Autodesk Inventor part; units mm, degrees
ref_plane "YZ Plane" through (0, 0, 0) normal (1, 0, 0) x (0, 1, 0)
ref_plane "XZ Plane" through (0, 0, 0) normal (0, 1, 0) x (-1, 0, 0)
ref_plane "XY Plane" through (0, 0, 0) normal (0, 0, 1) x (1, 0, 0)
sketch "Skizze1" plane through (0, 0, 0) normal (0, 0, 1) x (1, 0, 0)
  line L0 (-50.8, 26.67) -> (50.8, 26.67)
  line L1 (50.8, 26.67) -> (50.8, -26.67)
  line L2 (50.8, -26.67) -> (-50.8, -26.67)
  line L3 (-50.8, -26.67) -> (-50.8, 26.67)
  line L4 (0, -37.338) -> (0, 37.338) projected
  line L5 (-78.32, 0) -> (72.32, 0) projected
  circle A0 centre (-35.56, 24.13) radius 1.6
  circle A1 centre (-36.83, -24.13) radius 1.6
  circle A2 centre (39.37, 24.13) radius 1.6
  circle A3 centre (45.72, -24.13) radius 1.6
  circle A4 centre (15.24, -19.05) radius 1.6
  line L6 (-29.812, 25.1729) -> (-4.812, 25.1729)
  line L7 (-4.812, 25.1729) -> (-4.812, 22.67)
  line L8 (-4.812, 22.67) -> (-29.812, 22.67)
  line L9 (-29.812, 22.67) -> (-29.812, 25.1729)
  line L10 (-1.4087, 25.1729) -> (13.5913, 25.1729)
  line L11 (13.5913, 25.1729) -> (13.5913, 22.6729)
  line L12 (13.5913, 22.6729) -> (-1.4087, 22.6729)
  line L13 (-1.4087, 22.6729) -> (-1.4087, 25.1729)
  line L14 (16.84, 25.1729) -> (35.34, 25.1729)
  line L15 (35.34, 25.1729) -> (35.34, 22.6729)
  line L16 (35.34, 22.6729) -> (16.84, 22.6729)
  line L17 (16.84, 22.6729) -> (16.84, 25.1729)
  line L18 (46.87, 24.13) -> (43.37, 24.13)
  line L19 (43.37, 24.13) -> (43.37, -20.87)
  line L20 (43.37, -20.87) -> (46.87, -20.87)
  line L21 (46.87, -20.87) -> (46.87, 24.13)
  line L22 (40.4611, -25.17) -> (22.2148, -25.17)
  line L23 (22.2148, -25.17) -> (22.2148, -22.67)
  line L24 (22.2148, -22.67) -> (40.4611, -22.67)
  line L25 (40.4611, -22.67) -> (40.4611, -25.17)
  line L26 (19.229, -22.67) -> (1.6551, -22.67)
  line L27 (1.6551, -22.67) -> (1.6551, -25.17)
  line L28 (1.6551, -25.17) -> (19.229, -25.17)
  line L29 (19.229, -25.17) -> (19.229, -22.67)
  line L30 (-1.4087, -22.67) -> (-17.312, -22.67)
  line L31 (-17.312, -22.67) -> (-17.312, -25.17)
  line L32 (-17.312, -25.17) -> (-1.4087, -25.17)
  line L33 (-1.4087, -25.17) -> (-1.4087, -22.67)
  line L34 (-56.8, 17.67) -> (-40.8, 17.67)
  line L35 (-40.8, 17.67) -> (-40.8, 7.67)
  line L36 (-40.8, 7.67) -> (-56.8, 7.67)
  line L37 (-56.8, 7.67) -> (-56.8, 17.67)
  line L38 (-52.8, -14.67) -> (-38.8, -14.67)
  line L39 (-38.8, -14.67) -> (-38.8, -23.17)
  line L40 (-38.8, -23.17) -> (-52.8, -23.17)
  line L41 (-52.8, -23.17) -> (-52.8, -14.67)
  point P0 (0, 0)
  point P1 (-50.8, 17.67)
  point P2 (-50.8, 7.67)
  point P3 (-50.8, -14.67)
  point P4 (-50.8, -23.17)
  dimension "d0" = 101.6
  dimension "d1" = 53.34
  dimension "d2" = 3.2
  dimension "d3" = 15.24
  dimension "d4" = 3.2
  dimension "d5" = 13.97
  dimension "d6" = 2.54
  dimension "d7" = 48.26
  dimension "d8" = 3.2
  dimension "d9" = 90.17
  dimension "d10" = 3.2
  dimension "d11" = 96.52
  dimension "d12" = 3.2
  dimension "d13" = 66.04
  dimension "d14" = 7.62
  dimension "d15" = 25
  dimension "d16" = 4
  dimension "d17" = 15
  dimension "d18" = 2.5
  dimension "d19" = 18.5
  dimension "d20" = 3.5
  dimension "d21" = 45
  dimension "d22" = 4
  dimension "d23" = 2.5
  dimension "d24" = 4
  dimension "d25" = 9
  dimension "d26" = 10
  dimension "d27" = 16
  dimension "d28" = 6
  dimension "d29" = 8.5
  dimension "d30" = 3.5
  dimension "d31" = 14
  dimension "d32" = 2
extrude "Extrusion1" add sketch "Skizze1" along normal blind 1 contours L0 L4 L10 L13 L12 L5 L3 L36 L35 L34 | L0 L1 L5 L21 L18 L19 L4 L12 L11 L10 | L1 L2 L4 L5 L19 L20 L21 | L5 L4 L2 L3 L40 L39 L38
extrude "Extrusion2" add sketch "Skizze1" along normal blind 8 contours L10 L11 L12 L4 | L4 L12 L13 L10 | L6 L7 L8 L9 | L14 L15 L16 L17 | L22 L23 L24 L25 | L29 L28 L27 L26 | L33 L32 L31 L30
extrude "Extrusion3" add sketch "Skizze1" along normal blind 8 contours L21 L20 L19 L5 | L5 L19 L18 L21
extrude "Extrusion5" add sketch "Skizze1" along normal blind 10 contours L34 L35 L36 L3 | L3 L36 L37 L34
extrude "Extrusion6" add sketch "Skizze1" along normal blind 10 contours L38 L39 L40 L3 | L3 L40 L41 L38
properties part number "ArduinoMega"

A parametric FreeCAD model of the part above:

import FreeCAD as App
import Part
import Sketcher
Q = App.Units.Quantity

doc = App.newDocument("Part")
body = doc.addObject("PartDesign::Body", "Body")

sketch1 = body.newObject("Sketcher::SketchObject", "Sketch")
sketch1.AttachmentSupport = (doc.getObject("XY_Plane"), [""])
sketch1.MapMode = "FlatFace"
sketch1.addGeometry([
    Part.LineSegment(App.Vector(-50.8, 26.7, 0), App.Vector(-50.8, 17.7, 0)),
    Part.LineSegment(App.Vector(-50.8, 17.7, 0), App.Vector(-40.8, 17.7, 0)),
    Part.LineSegment(App.Vector(-40.8, 17.7, 0), App.Vector(-40.8, 7.7, 0)),
    Part.LineSegment(App.Vector(-40.8, 7.7, 0), App.Vector(-50.8, 7.7, 0)),
    Part.LineSegment(App.Vector(-50.8, 7.7, 0), App.Vector(-50.8, -14.7, 0)),
    Part.LineSegment(App.Vector(-50.8, -14.7, 0), App.Vector(-38.8, -14.7, 0)),
    Part.LineSegment(App.Vector(-38.8, -14.7, 0), App.Vector(-38.8, -23.2, 0)),
    Part.LineSegment(App.Vector(-38.8, -23.2, 0), App.Vector(-50.8, -23.2, 0)),
    Part.LineSegment(App.Vector(-50.8, -23.2, 0), App.Vector(-50.8, -26.7, 0)),
    Part.LineSegment(App.Vector(-50.8, -26.7, 0), App.Vector(50.8, -26.7, 0)),
    Part.LineSegment(App.Vector(50.8, -26.7, 0), App.Vector(50.8, 26.7, 0)),
    Part.LineSegment(App.Vector(50.8, 26.7, 0), App.Vector(-50.8, 26.7, 0)),
    Part.LineSegment(App.Vector(-1.4, 25.2, 0), App.Vector(13.6, 25.2, 0)),
    Part.LineSegment(App.Vector(13.6, 25.2, 0), App.Vector(13.6, 22.7, 0)),
    Part.LineSegment(App.Vector(13.6, 22.7, 0), App.Vector(-1.4, 22.7, 0)),
    Part.LineSegment(App.Vector(-1.4, 22.7, 0), App.Vector(-1.4, 25.2, 0)),
    Part.Circle(App.Vector(-35.6, 24.1, 0), App.Vector(0, 0, 1), 1.6),
    Part.LineSegment(App.Vector(-29.8, 22.7, 0), App.Vector(-29.8, 25.2, 0)),
    Part.LineSegment(App.Vector(-29.8, 25.2, 0), App.Vector(-4.8, 25.2, 0)),
    Part.LineSegment(App.Vector(-4.8, 25.2, 0), App.Vector(-4.8, 22.7, 0)),
    Part.LineSegment(App.Vector(-4.8, 22.7, 0), App.Vector(-29.8, 22.7, 0)),
    Part.LineSegment(App.Vector(46.9, 24.1, 0), App.Vector(46.9, -20.9, 0)),
    Part.LineSegment(App.Vector(46.9, -20.9, 0), App.Vector(43.4, -20.9, 0)),
    Part.LineSegment(App.Vector(43.4, -20.9, 0), App.Vector(43.4, 24.1, 0)),
    Part.LineSegment(App.Vector(43.4, 24.1, 0), App.Vector(46.9, 24.1, 0)),
    Part.LineSegment(App.Vector(16.8, 25.2, 0), App.Vector(35.3, 25.2, 0)),
    Part.LineSegment(App.Vector(35.3, 25.2, 0), App.Vector(35.3, 22.7, 0)),
    Part.LineSegment(App.Vector(35.3, 22.7, 0), App.Vector(16.8, 22.7, 0)),
    Part.LineSegment(App.Vector(16.8, 22.7, 0), App.Vector(16.8, 25.2, 0)),
    Part.Circle(App.Vector(39.4, 24.1, 0), App.Vector(0, 0, 1), 1.6),
    Part.LineSegment(App.Vector(-1.4, -22.7, 0), App.Vector(-1.4, -25.2, 0)),
    Part.LineSegment(App.Vector(-1.4, -25.2, 0), App.Vector(-17.3, -25.2, 0)),
    Part.LineSegment(App.Vector(-17.3, -25.2, 0), App.Vector(-17.3, -22.7, 0)),
    Part.LineSegment(App.Vector(-17.3, -22.7, 0), App.Vector(-1.4, -22.7, 0)),
    Part.Circle(App.Vector(-36.8, -24.1, 0), App.Vector(0, 0, 1), 1.6),
    Part.LineSegment(App.Vector(22.2, -25.2, 0), App.Vector(22.2, -22.7, 0)),
    Part.LineSegment(App.Vector(22.2, -22.7, 0), App.Vector(40.5, -22.7, 0)),
    Part.LineSegment(App.Vector(40.5, -22.7, 0), App.Vector(40.5, -25.2, 0)),
    Part.LineSegment(App.Vector(40.5, -25.2, 0), App.Vector(22.2, -25.2, 0)),
    Part.Circle(App.Vector(45.7, -24.1, 0), App.Vector(0, 0, 1), 1.6),
    Part.LineSegment(App.Vector(1.7, -22.7, 0), App.Vector(19.2, -22.7, 0)),
    Part.LineSegment(App.Vector(19.2, -22.7, 0), App.Vector(19.2, -25.2, 0)),
    Part.LineSegment(App.Vector(19.2, -25.2, 0), App.Vector(1.7, -25.2, 0)),
    Part.LineSegment(App.Vector(1.7, -25.2, 0), App.Vector(1.7, -22.7, 0)),
    Part.Circle(App.Vector(15.2, -19.1, 0), App.Vector(0, 0, 1), 1.6),
], False)
sketch1.addConstraint([
    Sketcher.Constraint("Coincident", 0, 2, 1, 1),
    Sketcher.Constraint("Coincident", 1, 2, 2, 1),
    Sketcher.Constraint("Coincident", 2, 2, 3, 1),
    Sketcher.Constraint("Coincident", 3, 2, 4, 1),
    Sketcher.Constraint("Coincident", 4, 2, 5, 1),
    Sketcher.Constraint("Coincident", 5, 2, 6, 1),
    Sketcher.Constraint("Coincident", 6, 2, 7, 1),
    Sketcher.Constraint("Coincident", 7, 2, 8, 1),
    Sketcher.Constraint("Coincident", 8, 2, 9, 1),
    Sketcher.Constraint("Coincident", 9, 2, 10, 1),
    Sketcher.Constraint("Coincident", 10, 2, 11, 1),
    Sketcher.Constraint("Coincident", 11, 2, 0, 1),
    Sketcher.Constraint("Coincident", 12, 2, 13, 1),
    Sketcher.Constraint("Coincident", 13, 2, 14, 1),
    Sketcher.Constraint("Coincident", 14, 2, 15, 1),
    Sketcher.Constraint("Coincident", 15, 2, 12, 1),
    Sketcher.Constraint("Coincident", 17, 2, 18, 1),
    Sketcher.Constraint("Coincident", 18, 2, 19, 1),
    Sketcher.Constraint("Coincident", 19, 2, 20, 1),
    Sketcher.Constraint("Coincident", 20, 2, 17, 1),
    Sketcher.Constraint("Coincident", 21, 2, 22, 1),
    Sketcher.Constraint("Coincident", 22, 2, 23, 1),
    Sketcher.Constraint("Coincident", 23, 2, 24, 1),
    Sketcher.Constraint("Coincident", 24, 2, 21, 1),
    Sketcher.Constraint("Coincident", 25, 2, 26, 1),
    Sketcher.Constraint("Coincident", 26, 2, 27, 1),
    Sketcher.Constraint("Coincident", 27, 2, 28, 1),
    Sketcher.Constraint("Coincident", 28, 2, 25, 1),
    Sketcher.Constraint("Coincident", 30, 2, 31, 1),
    Sketcher.Constraint("Coincident", 31, 2, 32, 1),
    Sketcher.Constraint("Coincident", 32, 2, 33, 1),
    Sketcher.Constraint("Coincident", 33, 2, 30, 1),
    Sketcher.Constraint("Coincident", 35, 2, 36, 1),
    Sketcher.Constraint("Coincident", 36, 2, 37, 1),
    Sketcher.Constraint("Coincident", 37, 2, 38, 1),
    Sketcher.Constraint("Coincident", 38, 2, 35, 1),
    Sketcher.Constraint("Coincident", 40, 2, 41, 1),
    Sketcher.Constraint("Coincident", 41, 2, 42, 1),
    Sketcher.Constraint("Coincident", 42, 2, 43, 1),
    Sketcher.Constraint("Coincident", 43, 2, 40, 1),
    Sketcher.Constraint("Vertical", 0),
    Sketcher.Constraint("Horizontal", 1),
    Sketcher.Constraint("Vertical", 2),
    Sketcher.Constraint("Horizontal", 3),
    Sketcher.Constraint("Vertical", 4),
    Sketcher.Constraint("Horizontal", 5),
    Sketcher.Constraint("Vertical", 6),
    Sketcher.Constraint("Horizontal", 7),
    Sketcher.Constraint("Vertical", 8),
    Sketcher.Constraint("Horizontal", 9),
    Sketcher.Constraint("Vertical", 10),
    Sketcher.Constraint("Horizontal", 11),
    Sketcher.Constraint("Horizontal", 12),
    Sketcher.Constraint("Vertical", 13),
    Sketcher.Constraint("Horizontal", 14),
    Sketcher.Constraint("Vertical", 15),
    Sketcher.Constraint("Vertical", 17),
    Sketcher.Constraint("Horizontal", 18),
    Sketcher.Constraint("Vertical", 19),
    Sketcher.Constraint("Horizontal", 20),
    Sketcher.Constraint("Vertical", 21),
    Sketcher.Constraint("Horizontal", 22),
    Sketcher.Constraint("Vertical", 23),
    Sketcher.Constraint("Horizontal", 24),
    Sketcher.Constraint("Horizontal", 25),
    Sketcher.Constraint("Vertical", 26),
    Sketcher.Constraint("Horizontal", 27),
    Sketcher.Constraint("Vertical", 28),
    Sketcher.Constraint("Vertical", 30),
    Sketcher.Constraint("Horizontal", 31),
    Sketcher.Constraint("Vertical", 32),
    Sketcher.Constraint("Horizontal", 33),
    Sketcher.Constraint("Vertical", 35),
    Sketcher.Constraint("Horizontal", 36),
    Sketcher.Constraint("Vertical", 37),
    Sketcher.Constraint("Horizontal", 38),
    Sketcher.Constraint("Horizontal", 40),
    Sketcher.Constraint("Vertical", 41),
    Sketcher.Constraint("Horizontal", 42),
    Sketcher.Constraint("Vertical", 43),
    Sketcher.Constraint("Equal", 16, 29),
    Sketcher.Constraint("Equal", 29, 34),
    Sketcher.Constraint("Equal", 34, 39),
    Sketcher.Constraint("Equal", 39, 44),
    Sketcher.Constraint("Symmetric", 8, 2, 10, 2, -1, 1),
    Sketcher.Constraint("Horizontal", 16, 3, 29, 3),
    Sketcher.Constraint("Horizontal", 34, 3, 39, 3),
    Sketcher.Constraint("Horizontal", 15, 2, 17, 2),
    Sketcher.Constraint("Horizontal", 29, 3, 23, 2),
    Sketcher.Constraint("Horizontal", 18, 2, 25, 2),
    Sketcher.Constraint("Horizontal", 14, 2, 26, 2),
    Sketcher.Constraint("Horizontal", 33, 2, 35, 2),
    Sketcher.Constraint("Horizontal", 31, 2, 37, 2),
    Sketcher.Constraint("Horizontal", 36, 2, 40, 2),
    Sketcher.Constraint("Horizontal", 38, 2, 41, 2),
    Sketcher.Constraint("Vertical", 0, 2, 3, 2),
    Sketcher.Constraint("Vertical", 4, 2, 7, 2),
    Sketcher.Constraint("Vertical", 15, 2, 30, 2),
    Sketcher.Constraint("Equal", 3, 2),
    Sketcher.Constraint("Equal", 24, 8),
    Sketcher.Constraint("Equal", 28, 30),
    Sketcher.Constraint("Diameter", 16, Q("3.2 mm")),
    Sketcher.Constraint("DistanceX", 1, 1, 1, 2, Q("10 mm")),
    Sketcher.Constraint("DistanceX", 12, 1, 12, 2, Q("15 mm")),
    Sketcher.Constraint("DistanceX", 18, 1, 18, 2, Q("25 mm")),
    Sketcher.Constraint("DistanceY", 0, 2, 0, 1, Q("9 mm")),
    Sketcher.Constraint("DistanceY", 21, 2, 21, 1, Q("45 mm")),
    Sketcher.Constraint("DistanceX", 9, 1, 9, 2, Q("101.6 mm")),
    Sketcher.Constraint("DistanceX", 22, 2, 22, 1, Q("3.5 mm")),
    Sketcher.Constraint("DistanceX", 25, 1, 25, 2, Q("18.5 mm")),
    Sketcher.Constraint("DistanceY", 6, 2, 6, 1, Q("8.5 mm")),
    Sketcher.Constraint("DistanceY", 13, 2, 13, 1, Q("2.5 mm")),
    Sketcher.Constraint("DistanceX", 2, 2, 5, 2, Q("2 mm")),
    Sketcher.Constraint("DistanceY", 2, 2, 20, 2, Q("15 mm")),
    Sketcher.Constraint("DistanceX", 29, 3, 22, 2, Q("4 mm")),
    Sketcher.Constraint("DistanceY", 30, 2, 6, 2, Q("2 mm")),
    Sketcher.Constraint("DistanceY", 10, 1, 10, 2, Q("53.34 mm")),
    Sketcher.Constraint("DistanceX", -1, 1, 44, 3, Q("15.24 mm")),
    Sketcher.Constraint("DistanceY", 34, 3, 16, 3, Q("48.26 mm")),
    Sketcher.Constraint("DistanceX", 0, 2, 16, 3, Q("15.24 mm")),
    Sketcher.Constraint("DistanceX", 0, 2, 34, 3, Q("13.97 mm")),
    Sketcher.Constraint("DistanceX", 0, 2, 29, 3, Q("90.17 mm")),
    Sketcher.Constraint("DistanceX", 0, 2, 39, 3, Q("96.52 mm")),
    Sketcher.Constraint("DistanceY", 8, 2, 34, 3, Q("2.54 mm")),
    Sketcher.Constraint("DistanceY", 9, 2, 44, 3, Q("7.62 mm")),
    Sketcher.Constraint("DistanceX", 40, 1, 40, 2, Q("17.574 mm")),
    Sketcher.Constraint("DistanceY", 17, 1, 17, 2, Q("2.503 mm")),
    Sketcher.Constraint("DistanceX", -1, 1, 25, 2, Q("35.34 mm")),
    Sketcher.Constraint("DistanceX", 31, 2, 31, 1, Q("15.9033 mm")),
    Sketcher.Constraint("DistanceX", 36, 1, 36, 2, Q("18.2463 mm")),
    Sketcher.Constraint("DistanceX", 17, 2, -1, 1, Q("29.812 mm")),
    Sketcher.Constraint("DistanceX", 31, 2, -1, 1, Q("17.312 mm")),
    Sketcher.Constraint("DistanceX", -1, 1, 36, 2, Q("40.461 mm")),
    Sketcher.Constraint("DistanceX", -1, 1, 40, 2, Q("19.229 mm")),
])
pad1 = body.newObject("PartDesign::Pad", "Pad")
pad1.Profile = sketch1
pad1.Length = 1

sketch2 = body.newObject("Sketcher::SketchObject", "Sketch001")
sketch2.AttachmentSupport = (doc.getObject("XY_Plane"), [""])
sketch2.MapMode = "FlatFace"
sketch2.addGeometry([
    Part.LineSegment(App.Vector(13.6, 25.2, 0), App.Vector(-1.4, 25.2, 0)),
    Part.LineSegment(App.Vector(-1.4, 25.2, 0), App.Vector(-1.4, 22.7, 0)),
    Part.LineSegment(App.Vector(-1.4, 22.7, 0), App.Vector(13.6, 22.7, 0)),
    Part.LineSegment(App.Vector(13.6, 22.7, 0), App.Vector(13.6, 25.2, 0)),
    Part.LineSegment(App.Vector(-4.8, 25.2, 0), App.Vector(-29.8, 25.2, 0)),
    Part.LineSegment(App.Vector(-29.8, 25.2, 0), App.Vector(-29.8, 22.7, 0)),
    Part.LineSegment(App.Vector(-29.8, 22.7, 0), App.Vector(-4.8, 22.7, 0)),
    Part.LineSegment(App.Vector(-4.8, 22.7, 0), App.Vector(-4.8, 25.2, 0)),
    Part.LineSegment(App.Vector(35.3, 25.2, 0), App.Vector(16.8, 25.2, 0)),
    Part.LineSegment(App.Vector(16.8, 25.2, 0), App.Vector(16.8, 22.7, 0)),
    Part.LineSegment(App.Vector(16.8, 22.7, 0), App.Vector(35.3, 22.7, 0)),
    Part.LineSegment(App.Vector(35.3, 22.7, 0), App.Vector(35.3, 25.2, 0)),
    Part.LineSegment(App.Vector(22.2, -25.2, 0), App.Vector(40.5, -25.2, 0)),
    Part.LineSegment(App.Vector(40.5, -25.2, 0), App.Vector(40.5, -22.7, 0)),
    Part.LineSegment(App.Vector(40.5, -22.7, 0), App.Vector(22.2, -22.7, 0)),
    Part.LineSegment(App.Vector(22.2, -22.7, 0), App.Vector(22.2, -25.2, 0)),
    Part.LineSegment(App.Vector(19.2, -25.2, 0), App.Vector(19.2, -22.7, 0)),
    Part.LineSegment(App.Vector(19.2, -22.7, 0), App.Vector(1.7, -22.7, 0)),
    Part.LineSegment(App.Vector(1.7, -22.7, 0), App.Vector(1.7, -25.2, 0)),
    Part.LineSegment(App.Vector(1.7, -25.2, 0), App.Vector(19.2, -25.2, 0)),
    Part.LineSegment(App.Vector(-1.4, -25.2, 0), App.Vector(-1.4, -22.7, 0)),
    Part.LineSegment(App.Vector(-1.4, -22.7, 0), App.Vector(-17.3, -22.7, 0)),
    Part.LineSegment(App.Vector(-17.3, -22.7, 0), App.Vector(-17.3, -25.2, 0)),
    Part.LineSegment(App.Vector(-17.3, -25.2, 0), App.Vector(-1.4, -25.2, 0)),
], False)
sketch2.addConstraint([
    Sketcher.Constraint("Coincident", 0, 2, 1, 1),
    Sketcher.Constraint("Coincident", 1, 2, 2, 1),
    Sketcher.Constraint("Coincident", 2, 2, 3, 1),
    Sketcher.Constraint("Coincident", 3, 2, 0, 1),
    Sketcher.Constraint("Coincident", 4, 2, 5, 1),
    Sketcher.Constraint("Coincident", 5, 2, 6, 1),
    Sketcher.Constraint("Coincident", 6, 2, 7, 1),
    Sketcher.Constraint("Coincident", 7, 2, 4, 1),
    Sketcher.Constraint("Coincident", 8, 2, 9, 1),
    Sketcher.Constraint("Coincident", 9, 2, 10, 1),
    Sketcher.Constraint("Coincident", 10, 2, 11, 1),
    Sketcher.Constraint("Coincident", 11, 2, 8, 1),
    Sketcher.Constraint("Coincident", 12, 2, 13, 1),
    Sketcher.Constraint("Coincident", 13, 2, 14, 1),
    Sketcher.Constraint("Coincident", 14, 2, 15, 1),
    Sketcher.Constraint("Coincident", 15, 2, 12, 1),
    Sketcher.Constraint("Coincident", 16, 2, 17, 1),
    Sketcher.Constraint("Coincident", 17, 2, 18, 1),
    Sketcher.Constraint("Coincident", 18, 2, 19, 1),
    Sketcher.Constraint("Coincident", 19, 2, 16, 1),
    Sketcher.Constraint("Coincident", 20, 2, 21, 1),
    Sketcher.Constraint("Coincident", 21, 2, 22, 1),
    Sketcher.Constraint("Coincident", 22, 2, 23, 1),
    Sketcher.Constraint("Coincident", 23, 2, 20, 1),
    Sketcher.Constraint("Horizontal", 0),
    Sketcher.Constraint("Vertical", 1),
    Sketcher.Constraint("Horizontal", 2),
    Sketcher.Constraint("Vertical", 3),
    Sketcher.Constraint("Horizontal", 4),
    Sketcher.Constraint("Vertical", 5),
    Sketcher.Constraint("Horizontal", 6),
    Sketcher.Constraint("Vertical", 7),
    Sketcher.Constraint("Horizontal", 8),
    Sketcher.Constraint("Vertical", 9),
    Sketcher.Constraint("Horizontal", 10),
    Sketcher.Constraint("Vertical", 11),
    Sketcher.Constraint("Horizontal", 12),
    Sketcher.Constraint("Vertical", 13),
    Sketcher.Constraint("Horizontal", 14),
    Sketcher.Constraint("Vertical", 15),
    Sketcher.Constraint("Vertical", 16),
    Sketcher.Constraint("Horizontal", 17),
    Sketcher.Constraint("Vertical", 18),
    Sketcher.Constraint("Horizontal", 19),
    Sketcher.Constraint("Vertical", 20),
    Sketcher.Constraint("Horizontal", 21),
    Sketcher.Constraint("Vertical", 22),
    Sketcher.Constraint("Horizontal", 23),
    Sketcher.Constraint("Horizontal", 3, 2, 4, 2),
    Sketcher.Constraint("Horizontal", 7, 2, 8, 2),
    Sketcher.Constraint("Horizontal", 2, 2, 9, 2),
    Sketcher.Constraint("Horizontal", 14, 2, 16, 2),
    Sketcher.Constraint("Horizontal", 15, 2, 18, 2),
    Sketcher.Constraint("Horizontal", 17, 2, 20, 2),
    Sketcher.Constraint("Horizontal", 19, 2, 22, 2),
    Sketcher.Constraint("Vertical", 1, 2, 20, 2),
    Sketcher.Constraint("Equal", 11, 13),
    Sketcher.Constraint("DistanceX", 0, 2, 0, 1, Q("15 mm")),
    Sketcher.Constraint("DistanceX", 4, 2, 4, 1, Q("25 mm")),
    Sketcher.Constraint("DistanceX", 8, 2, 8, 1, Q("18.5 mm")),
    Sketcher.Constraint("DistanceY", 1, 2, 1, 1, Q("2.5 mm")),
    Sketcher.Constraint("DistanceX", 17, 2, 17, 1, Q("17.574 mm")),
    Sketcher.Constraint("DistanceY", 5, 2, 5, 1, Q("2.503 mm")),
    Sketcher.Constraint("DistanceY", -1, 1, 5, 2, Q("22.67 mm")),
    Sketcher.Constraint("DistanceX", -1, 1, 8, 2, Q("16.84 mm")),
    Sketcher.Constraint("DistanceY", 12, 2, -1, 1, Q("25.17 mm")),
    Sketcher.Constraint("DistanceX", 12, 1, 12, 2, Q("18.2463 mm")),
    Sketcher.Constraint("DistanceX", 21, 2, 21, 1, Q("15.9033 mm")),
    Sketcher.Constraint("DistanceX", 4, 2, -1, 1, Q("29.812 mm")),
    Sketcher.Constraint("DistanceX", -1, 1, 12, 2, Q("40.461 mm")),
    Sketcher.Constraint("DistanceX", -1, 1, 16, 2, Q("19.229 mm")),
    Sketcher.Constraint("DistanceX", 21, 2, -1, 1, Q("17.312 mm")),
])
pad2 = body.newObject("PartDesign::Pad", "Pad001")
pad2.Profile = sketch2
pad2.Length = 8

sketch3 = body.newObject("Sketcher::SketchObject", "Sketch002")
sketch3.AttachmentSupport = (doc.getObject("XY_Plane"), [""])
sketch3.MapMode = "FlatFace"
sketch3.addGeometry([
    Part.LineSegment(App.Vector(46.9, -20.9, 0), App.Vector(46.9, 24.1, 0)),
    Part.LineSegment(App.Vector(46.9, 24.1, 0), App.Vector(43.4, 24.1, 0)),
    Part.LineSegment(App.Vector(43.4, 24.1, 0), App.Vector(43.4, -20.9, 0)),
    Part.LineSegment(App.Vector(43.4, -20.9, 0), App.Vector(46.9, -20.9, 0)),
], False)
sketch3.addConstraint([
    Sketcher.Constraint("Coincident", 0, 2, 1, 1),
    Sketcher.Constraint("Coincident", 1, 2, 2, 1),
    Sketcher.Constraint("Coincident", 2, 2, 3, 1),
    Sketcher.Constraint("Coincident", 3, 2, 0, 1),
    Sketcher.Constraint("Vertical", 0),
    Sketcher.Constraint("Horizontal", 1),
    Sketcher.Constraint("Vertical", 2),
    Sketcher.Constraint("Horizontal", 3),
    Sketcher.Constraint("DistanceY", 0, 1, 0, 2, Q("45 mm")),
    Sketcher.Constraint("DistanceX", 1, 2, 1, 1, Q("3.5 mm")),
    Sketcher.Constraint("DistanceX", -1, 1, 0, 2, Q("46.87 mm")),
    Sketcher.Constraint("DistanceY", -1, 1, 0, 2, Q("24.13 mm")),
])
pad3 = body.newObject("PartDesign::Pad", "Pad002")
pad3.Profile = sketch3
pad3.Length = 8

sketch4 = body.newObject("Sketcher::SketchObject", "Sketch003")
sketch4.AttachmentSupport = (doc.getObject("XY_Plane"), [""])
sketch4.MapMode = "FlatFace"
sketch4.addGeometry([
    Part.LineSegment(App.Vector(-41, 18, 0), App.Vector(-57, 18, 0)),
    Part.LineSegment(App.Vector(-57, 18, 0), App.Vector(-57, 8, 0)),
    Part.LineSegment(App.Vector(-57, 8, 0), App.Vector(-41, 8, 0)),
    Part.LineSegment(App.Vector(-41, 8, 0), App.Vector(-41, 18, 0)),
], False)
sketch4.addConstraint([
    Sketcher.Constraint("Coincident", 0, 2, 1, 1),
    Sketcher.Constraint("Coincident", 1, 2, 2, 1),
    Sketcher.Constraint("Coincident", 2, 2, 3, 1),
    Sketcher.Constraint("Coincident", 3, 2, 0, 1),
    Sketcher.Constraint("Horizontal", 0),
    Sketcher.Constraint("Vertical", 1),
    Sketcher.Constraint("Horizontal", 2),
    Sketcher.Constraint("Vertical", 3),
    Sketcher.Constraint("DistanceX", 0, 2, 0, 1, Q("16 mm")),
    Sketcher.Constraint("DistanceY", 1, 2, 1, 1, Q("10 mm")),
    Sketcher.Constraint("DistanceX", 0, 2, -1, 1, Q("56.8 mm")),
    Sketcher.Constraint("DistanceY", -1, 1, 0, 2, Q("17.67 mm")),
])
pad4 = body.newObject("PartDesign::Pad", "Pad003")
pad4.Profile = sketch4
pad4.Length = 10

sketch5 = body.newObject("Sketcher::SketchObject", "Sketch004")
sketch5.AttachmentSupport = (doc.getObject("XY_Plane"), [""])
sketch5.MapMode = "FlatFace"
sketch5.addGeometry([
    Part.LineSegment(App.Vector(-39, -15, 0), App.Vector(-53, -15, 0)),
    Part.LineSegment(App.Vector(-53, -15, 0), App.Vector(-53, -23, 0)),
    Part.LineSegment(App.Vector(-53, -23, 0), App.Vector(-39, -23, 0)),
    Part.LineSegment(App.Vector(-39, -23, 0), App.Vector(-39, -15, 0)),
], False)
sketch5.addConstraint([
    Sketcher.Constraint("Coincident", 0, 2, 1, 1),
    Sketcher.Constraint("Coincident", 1, 2, 2, 1),
    Sketcher.Constraint("Coincident", 2, 2, 3, 1),
    Sketcher.Constraint("Coincident", 3, 2, 0, 1),
    Sketcher.Constraint("Horizontal", 0),
    Sketcher.Constraint("Vertical", 1),
    Sketcher.Constraint("Horizontal", 2),
    Sketcher.Constraint("Vertical", 3),
    Sketcher.Constraint("DistanceX", 0, 2, 0, 1, Q("14 mm")),
    Sketcher.Constraint("DistanceY", 1, 2, 1, 1, Q("8.5 mm")),
    Sketcher.Constraint("DistanceX", 0, 2, -1, 1, Q("52.8 mm")),
    Sketcher.Constraint("DistanceY", 0, 2, -1, 1, Q("14.67 mm")),
])
pad5 = body.newObject("PartDesign::Pad", "Pad004")
pad5.Profile = sketch5
pad5.Length = 10

doc.recompute()
